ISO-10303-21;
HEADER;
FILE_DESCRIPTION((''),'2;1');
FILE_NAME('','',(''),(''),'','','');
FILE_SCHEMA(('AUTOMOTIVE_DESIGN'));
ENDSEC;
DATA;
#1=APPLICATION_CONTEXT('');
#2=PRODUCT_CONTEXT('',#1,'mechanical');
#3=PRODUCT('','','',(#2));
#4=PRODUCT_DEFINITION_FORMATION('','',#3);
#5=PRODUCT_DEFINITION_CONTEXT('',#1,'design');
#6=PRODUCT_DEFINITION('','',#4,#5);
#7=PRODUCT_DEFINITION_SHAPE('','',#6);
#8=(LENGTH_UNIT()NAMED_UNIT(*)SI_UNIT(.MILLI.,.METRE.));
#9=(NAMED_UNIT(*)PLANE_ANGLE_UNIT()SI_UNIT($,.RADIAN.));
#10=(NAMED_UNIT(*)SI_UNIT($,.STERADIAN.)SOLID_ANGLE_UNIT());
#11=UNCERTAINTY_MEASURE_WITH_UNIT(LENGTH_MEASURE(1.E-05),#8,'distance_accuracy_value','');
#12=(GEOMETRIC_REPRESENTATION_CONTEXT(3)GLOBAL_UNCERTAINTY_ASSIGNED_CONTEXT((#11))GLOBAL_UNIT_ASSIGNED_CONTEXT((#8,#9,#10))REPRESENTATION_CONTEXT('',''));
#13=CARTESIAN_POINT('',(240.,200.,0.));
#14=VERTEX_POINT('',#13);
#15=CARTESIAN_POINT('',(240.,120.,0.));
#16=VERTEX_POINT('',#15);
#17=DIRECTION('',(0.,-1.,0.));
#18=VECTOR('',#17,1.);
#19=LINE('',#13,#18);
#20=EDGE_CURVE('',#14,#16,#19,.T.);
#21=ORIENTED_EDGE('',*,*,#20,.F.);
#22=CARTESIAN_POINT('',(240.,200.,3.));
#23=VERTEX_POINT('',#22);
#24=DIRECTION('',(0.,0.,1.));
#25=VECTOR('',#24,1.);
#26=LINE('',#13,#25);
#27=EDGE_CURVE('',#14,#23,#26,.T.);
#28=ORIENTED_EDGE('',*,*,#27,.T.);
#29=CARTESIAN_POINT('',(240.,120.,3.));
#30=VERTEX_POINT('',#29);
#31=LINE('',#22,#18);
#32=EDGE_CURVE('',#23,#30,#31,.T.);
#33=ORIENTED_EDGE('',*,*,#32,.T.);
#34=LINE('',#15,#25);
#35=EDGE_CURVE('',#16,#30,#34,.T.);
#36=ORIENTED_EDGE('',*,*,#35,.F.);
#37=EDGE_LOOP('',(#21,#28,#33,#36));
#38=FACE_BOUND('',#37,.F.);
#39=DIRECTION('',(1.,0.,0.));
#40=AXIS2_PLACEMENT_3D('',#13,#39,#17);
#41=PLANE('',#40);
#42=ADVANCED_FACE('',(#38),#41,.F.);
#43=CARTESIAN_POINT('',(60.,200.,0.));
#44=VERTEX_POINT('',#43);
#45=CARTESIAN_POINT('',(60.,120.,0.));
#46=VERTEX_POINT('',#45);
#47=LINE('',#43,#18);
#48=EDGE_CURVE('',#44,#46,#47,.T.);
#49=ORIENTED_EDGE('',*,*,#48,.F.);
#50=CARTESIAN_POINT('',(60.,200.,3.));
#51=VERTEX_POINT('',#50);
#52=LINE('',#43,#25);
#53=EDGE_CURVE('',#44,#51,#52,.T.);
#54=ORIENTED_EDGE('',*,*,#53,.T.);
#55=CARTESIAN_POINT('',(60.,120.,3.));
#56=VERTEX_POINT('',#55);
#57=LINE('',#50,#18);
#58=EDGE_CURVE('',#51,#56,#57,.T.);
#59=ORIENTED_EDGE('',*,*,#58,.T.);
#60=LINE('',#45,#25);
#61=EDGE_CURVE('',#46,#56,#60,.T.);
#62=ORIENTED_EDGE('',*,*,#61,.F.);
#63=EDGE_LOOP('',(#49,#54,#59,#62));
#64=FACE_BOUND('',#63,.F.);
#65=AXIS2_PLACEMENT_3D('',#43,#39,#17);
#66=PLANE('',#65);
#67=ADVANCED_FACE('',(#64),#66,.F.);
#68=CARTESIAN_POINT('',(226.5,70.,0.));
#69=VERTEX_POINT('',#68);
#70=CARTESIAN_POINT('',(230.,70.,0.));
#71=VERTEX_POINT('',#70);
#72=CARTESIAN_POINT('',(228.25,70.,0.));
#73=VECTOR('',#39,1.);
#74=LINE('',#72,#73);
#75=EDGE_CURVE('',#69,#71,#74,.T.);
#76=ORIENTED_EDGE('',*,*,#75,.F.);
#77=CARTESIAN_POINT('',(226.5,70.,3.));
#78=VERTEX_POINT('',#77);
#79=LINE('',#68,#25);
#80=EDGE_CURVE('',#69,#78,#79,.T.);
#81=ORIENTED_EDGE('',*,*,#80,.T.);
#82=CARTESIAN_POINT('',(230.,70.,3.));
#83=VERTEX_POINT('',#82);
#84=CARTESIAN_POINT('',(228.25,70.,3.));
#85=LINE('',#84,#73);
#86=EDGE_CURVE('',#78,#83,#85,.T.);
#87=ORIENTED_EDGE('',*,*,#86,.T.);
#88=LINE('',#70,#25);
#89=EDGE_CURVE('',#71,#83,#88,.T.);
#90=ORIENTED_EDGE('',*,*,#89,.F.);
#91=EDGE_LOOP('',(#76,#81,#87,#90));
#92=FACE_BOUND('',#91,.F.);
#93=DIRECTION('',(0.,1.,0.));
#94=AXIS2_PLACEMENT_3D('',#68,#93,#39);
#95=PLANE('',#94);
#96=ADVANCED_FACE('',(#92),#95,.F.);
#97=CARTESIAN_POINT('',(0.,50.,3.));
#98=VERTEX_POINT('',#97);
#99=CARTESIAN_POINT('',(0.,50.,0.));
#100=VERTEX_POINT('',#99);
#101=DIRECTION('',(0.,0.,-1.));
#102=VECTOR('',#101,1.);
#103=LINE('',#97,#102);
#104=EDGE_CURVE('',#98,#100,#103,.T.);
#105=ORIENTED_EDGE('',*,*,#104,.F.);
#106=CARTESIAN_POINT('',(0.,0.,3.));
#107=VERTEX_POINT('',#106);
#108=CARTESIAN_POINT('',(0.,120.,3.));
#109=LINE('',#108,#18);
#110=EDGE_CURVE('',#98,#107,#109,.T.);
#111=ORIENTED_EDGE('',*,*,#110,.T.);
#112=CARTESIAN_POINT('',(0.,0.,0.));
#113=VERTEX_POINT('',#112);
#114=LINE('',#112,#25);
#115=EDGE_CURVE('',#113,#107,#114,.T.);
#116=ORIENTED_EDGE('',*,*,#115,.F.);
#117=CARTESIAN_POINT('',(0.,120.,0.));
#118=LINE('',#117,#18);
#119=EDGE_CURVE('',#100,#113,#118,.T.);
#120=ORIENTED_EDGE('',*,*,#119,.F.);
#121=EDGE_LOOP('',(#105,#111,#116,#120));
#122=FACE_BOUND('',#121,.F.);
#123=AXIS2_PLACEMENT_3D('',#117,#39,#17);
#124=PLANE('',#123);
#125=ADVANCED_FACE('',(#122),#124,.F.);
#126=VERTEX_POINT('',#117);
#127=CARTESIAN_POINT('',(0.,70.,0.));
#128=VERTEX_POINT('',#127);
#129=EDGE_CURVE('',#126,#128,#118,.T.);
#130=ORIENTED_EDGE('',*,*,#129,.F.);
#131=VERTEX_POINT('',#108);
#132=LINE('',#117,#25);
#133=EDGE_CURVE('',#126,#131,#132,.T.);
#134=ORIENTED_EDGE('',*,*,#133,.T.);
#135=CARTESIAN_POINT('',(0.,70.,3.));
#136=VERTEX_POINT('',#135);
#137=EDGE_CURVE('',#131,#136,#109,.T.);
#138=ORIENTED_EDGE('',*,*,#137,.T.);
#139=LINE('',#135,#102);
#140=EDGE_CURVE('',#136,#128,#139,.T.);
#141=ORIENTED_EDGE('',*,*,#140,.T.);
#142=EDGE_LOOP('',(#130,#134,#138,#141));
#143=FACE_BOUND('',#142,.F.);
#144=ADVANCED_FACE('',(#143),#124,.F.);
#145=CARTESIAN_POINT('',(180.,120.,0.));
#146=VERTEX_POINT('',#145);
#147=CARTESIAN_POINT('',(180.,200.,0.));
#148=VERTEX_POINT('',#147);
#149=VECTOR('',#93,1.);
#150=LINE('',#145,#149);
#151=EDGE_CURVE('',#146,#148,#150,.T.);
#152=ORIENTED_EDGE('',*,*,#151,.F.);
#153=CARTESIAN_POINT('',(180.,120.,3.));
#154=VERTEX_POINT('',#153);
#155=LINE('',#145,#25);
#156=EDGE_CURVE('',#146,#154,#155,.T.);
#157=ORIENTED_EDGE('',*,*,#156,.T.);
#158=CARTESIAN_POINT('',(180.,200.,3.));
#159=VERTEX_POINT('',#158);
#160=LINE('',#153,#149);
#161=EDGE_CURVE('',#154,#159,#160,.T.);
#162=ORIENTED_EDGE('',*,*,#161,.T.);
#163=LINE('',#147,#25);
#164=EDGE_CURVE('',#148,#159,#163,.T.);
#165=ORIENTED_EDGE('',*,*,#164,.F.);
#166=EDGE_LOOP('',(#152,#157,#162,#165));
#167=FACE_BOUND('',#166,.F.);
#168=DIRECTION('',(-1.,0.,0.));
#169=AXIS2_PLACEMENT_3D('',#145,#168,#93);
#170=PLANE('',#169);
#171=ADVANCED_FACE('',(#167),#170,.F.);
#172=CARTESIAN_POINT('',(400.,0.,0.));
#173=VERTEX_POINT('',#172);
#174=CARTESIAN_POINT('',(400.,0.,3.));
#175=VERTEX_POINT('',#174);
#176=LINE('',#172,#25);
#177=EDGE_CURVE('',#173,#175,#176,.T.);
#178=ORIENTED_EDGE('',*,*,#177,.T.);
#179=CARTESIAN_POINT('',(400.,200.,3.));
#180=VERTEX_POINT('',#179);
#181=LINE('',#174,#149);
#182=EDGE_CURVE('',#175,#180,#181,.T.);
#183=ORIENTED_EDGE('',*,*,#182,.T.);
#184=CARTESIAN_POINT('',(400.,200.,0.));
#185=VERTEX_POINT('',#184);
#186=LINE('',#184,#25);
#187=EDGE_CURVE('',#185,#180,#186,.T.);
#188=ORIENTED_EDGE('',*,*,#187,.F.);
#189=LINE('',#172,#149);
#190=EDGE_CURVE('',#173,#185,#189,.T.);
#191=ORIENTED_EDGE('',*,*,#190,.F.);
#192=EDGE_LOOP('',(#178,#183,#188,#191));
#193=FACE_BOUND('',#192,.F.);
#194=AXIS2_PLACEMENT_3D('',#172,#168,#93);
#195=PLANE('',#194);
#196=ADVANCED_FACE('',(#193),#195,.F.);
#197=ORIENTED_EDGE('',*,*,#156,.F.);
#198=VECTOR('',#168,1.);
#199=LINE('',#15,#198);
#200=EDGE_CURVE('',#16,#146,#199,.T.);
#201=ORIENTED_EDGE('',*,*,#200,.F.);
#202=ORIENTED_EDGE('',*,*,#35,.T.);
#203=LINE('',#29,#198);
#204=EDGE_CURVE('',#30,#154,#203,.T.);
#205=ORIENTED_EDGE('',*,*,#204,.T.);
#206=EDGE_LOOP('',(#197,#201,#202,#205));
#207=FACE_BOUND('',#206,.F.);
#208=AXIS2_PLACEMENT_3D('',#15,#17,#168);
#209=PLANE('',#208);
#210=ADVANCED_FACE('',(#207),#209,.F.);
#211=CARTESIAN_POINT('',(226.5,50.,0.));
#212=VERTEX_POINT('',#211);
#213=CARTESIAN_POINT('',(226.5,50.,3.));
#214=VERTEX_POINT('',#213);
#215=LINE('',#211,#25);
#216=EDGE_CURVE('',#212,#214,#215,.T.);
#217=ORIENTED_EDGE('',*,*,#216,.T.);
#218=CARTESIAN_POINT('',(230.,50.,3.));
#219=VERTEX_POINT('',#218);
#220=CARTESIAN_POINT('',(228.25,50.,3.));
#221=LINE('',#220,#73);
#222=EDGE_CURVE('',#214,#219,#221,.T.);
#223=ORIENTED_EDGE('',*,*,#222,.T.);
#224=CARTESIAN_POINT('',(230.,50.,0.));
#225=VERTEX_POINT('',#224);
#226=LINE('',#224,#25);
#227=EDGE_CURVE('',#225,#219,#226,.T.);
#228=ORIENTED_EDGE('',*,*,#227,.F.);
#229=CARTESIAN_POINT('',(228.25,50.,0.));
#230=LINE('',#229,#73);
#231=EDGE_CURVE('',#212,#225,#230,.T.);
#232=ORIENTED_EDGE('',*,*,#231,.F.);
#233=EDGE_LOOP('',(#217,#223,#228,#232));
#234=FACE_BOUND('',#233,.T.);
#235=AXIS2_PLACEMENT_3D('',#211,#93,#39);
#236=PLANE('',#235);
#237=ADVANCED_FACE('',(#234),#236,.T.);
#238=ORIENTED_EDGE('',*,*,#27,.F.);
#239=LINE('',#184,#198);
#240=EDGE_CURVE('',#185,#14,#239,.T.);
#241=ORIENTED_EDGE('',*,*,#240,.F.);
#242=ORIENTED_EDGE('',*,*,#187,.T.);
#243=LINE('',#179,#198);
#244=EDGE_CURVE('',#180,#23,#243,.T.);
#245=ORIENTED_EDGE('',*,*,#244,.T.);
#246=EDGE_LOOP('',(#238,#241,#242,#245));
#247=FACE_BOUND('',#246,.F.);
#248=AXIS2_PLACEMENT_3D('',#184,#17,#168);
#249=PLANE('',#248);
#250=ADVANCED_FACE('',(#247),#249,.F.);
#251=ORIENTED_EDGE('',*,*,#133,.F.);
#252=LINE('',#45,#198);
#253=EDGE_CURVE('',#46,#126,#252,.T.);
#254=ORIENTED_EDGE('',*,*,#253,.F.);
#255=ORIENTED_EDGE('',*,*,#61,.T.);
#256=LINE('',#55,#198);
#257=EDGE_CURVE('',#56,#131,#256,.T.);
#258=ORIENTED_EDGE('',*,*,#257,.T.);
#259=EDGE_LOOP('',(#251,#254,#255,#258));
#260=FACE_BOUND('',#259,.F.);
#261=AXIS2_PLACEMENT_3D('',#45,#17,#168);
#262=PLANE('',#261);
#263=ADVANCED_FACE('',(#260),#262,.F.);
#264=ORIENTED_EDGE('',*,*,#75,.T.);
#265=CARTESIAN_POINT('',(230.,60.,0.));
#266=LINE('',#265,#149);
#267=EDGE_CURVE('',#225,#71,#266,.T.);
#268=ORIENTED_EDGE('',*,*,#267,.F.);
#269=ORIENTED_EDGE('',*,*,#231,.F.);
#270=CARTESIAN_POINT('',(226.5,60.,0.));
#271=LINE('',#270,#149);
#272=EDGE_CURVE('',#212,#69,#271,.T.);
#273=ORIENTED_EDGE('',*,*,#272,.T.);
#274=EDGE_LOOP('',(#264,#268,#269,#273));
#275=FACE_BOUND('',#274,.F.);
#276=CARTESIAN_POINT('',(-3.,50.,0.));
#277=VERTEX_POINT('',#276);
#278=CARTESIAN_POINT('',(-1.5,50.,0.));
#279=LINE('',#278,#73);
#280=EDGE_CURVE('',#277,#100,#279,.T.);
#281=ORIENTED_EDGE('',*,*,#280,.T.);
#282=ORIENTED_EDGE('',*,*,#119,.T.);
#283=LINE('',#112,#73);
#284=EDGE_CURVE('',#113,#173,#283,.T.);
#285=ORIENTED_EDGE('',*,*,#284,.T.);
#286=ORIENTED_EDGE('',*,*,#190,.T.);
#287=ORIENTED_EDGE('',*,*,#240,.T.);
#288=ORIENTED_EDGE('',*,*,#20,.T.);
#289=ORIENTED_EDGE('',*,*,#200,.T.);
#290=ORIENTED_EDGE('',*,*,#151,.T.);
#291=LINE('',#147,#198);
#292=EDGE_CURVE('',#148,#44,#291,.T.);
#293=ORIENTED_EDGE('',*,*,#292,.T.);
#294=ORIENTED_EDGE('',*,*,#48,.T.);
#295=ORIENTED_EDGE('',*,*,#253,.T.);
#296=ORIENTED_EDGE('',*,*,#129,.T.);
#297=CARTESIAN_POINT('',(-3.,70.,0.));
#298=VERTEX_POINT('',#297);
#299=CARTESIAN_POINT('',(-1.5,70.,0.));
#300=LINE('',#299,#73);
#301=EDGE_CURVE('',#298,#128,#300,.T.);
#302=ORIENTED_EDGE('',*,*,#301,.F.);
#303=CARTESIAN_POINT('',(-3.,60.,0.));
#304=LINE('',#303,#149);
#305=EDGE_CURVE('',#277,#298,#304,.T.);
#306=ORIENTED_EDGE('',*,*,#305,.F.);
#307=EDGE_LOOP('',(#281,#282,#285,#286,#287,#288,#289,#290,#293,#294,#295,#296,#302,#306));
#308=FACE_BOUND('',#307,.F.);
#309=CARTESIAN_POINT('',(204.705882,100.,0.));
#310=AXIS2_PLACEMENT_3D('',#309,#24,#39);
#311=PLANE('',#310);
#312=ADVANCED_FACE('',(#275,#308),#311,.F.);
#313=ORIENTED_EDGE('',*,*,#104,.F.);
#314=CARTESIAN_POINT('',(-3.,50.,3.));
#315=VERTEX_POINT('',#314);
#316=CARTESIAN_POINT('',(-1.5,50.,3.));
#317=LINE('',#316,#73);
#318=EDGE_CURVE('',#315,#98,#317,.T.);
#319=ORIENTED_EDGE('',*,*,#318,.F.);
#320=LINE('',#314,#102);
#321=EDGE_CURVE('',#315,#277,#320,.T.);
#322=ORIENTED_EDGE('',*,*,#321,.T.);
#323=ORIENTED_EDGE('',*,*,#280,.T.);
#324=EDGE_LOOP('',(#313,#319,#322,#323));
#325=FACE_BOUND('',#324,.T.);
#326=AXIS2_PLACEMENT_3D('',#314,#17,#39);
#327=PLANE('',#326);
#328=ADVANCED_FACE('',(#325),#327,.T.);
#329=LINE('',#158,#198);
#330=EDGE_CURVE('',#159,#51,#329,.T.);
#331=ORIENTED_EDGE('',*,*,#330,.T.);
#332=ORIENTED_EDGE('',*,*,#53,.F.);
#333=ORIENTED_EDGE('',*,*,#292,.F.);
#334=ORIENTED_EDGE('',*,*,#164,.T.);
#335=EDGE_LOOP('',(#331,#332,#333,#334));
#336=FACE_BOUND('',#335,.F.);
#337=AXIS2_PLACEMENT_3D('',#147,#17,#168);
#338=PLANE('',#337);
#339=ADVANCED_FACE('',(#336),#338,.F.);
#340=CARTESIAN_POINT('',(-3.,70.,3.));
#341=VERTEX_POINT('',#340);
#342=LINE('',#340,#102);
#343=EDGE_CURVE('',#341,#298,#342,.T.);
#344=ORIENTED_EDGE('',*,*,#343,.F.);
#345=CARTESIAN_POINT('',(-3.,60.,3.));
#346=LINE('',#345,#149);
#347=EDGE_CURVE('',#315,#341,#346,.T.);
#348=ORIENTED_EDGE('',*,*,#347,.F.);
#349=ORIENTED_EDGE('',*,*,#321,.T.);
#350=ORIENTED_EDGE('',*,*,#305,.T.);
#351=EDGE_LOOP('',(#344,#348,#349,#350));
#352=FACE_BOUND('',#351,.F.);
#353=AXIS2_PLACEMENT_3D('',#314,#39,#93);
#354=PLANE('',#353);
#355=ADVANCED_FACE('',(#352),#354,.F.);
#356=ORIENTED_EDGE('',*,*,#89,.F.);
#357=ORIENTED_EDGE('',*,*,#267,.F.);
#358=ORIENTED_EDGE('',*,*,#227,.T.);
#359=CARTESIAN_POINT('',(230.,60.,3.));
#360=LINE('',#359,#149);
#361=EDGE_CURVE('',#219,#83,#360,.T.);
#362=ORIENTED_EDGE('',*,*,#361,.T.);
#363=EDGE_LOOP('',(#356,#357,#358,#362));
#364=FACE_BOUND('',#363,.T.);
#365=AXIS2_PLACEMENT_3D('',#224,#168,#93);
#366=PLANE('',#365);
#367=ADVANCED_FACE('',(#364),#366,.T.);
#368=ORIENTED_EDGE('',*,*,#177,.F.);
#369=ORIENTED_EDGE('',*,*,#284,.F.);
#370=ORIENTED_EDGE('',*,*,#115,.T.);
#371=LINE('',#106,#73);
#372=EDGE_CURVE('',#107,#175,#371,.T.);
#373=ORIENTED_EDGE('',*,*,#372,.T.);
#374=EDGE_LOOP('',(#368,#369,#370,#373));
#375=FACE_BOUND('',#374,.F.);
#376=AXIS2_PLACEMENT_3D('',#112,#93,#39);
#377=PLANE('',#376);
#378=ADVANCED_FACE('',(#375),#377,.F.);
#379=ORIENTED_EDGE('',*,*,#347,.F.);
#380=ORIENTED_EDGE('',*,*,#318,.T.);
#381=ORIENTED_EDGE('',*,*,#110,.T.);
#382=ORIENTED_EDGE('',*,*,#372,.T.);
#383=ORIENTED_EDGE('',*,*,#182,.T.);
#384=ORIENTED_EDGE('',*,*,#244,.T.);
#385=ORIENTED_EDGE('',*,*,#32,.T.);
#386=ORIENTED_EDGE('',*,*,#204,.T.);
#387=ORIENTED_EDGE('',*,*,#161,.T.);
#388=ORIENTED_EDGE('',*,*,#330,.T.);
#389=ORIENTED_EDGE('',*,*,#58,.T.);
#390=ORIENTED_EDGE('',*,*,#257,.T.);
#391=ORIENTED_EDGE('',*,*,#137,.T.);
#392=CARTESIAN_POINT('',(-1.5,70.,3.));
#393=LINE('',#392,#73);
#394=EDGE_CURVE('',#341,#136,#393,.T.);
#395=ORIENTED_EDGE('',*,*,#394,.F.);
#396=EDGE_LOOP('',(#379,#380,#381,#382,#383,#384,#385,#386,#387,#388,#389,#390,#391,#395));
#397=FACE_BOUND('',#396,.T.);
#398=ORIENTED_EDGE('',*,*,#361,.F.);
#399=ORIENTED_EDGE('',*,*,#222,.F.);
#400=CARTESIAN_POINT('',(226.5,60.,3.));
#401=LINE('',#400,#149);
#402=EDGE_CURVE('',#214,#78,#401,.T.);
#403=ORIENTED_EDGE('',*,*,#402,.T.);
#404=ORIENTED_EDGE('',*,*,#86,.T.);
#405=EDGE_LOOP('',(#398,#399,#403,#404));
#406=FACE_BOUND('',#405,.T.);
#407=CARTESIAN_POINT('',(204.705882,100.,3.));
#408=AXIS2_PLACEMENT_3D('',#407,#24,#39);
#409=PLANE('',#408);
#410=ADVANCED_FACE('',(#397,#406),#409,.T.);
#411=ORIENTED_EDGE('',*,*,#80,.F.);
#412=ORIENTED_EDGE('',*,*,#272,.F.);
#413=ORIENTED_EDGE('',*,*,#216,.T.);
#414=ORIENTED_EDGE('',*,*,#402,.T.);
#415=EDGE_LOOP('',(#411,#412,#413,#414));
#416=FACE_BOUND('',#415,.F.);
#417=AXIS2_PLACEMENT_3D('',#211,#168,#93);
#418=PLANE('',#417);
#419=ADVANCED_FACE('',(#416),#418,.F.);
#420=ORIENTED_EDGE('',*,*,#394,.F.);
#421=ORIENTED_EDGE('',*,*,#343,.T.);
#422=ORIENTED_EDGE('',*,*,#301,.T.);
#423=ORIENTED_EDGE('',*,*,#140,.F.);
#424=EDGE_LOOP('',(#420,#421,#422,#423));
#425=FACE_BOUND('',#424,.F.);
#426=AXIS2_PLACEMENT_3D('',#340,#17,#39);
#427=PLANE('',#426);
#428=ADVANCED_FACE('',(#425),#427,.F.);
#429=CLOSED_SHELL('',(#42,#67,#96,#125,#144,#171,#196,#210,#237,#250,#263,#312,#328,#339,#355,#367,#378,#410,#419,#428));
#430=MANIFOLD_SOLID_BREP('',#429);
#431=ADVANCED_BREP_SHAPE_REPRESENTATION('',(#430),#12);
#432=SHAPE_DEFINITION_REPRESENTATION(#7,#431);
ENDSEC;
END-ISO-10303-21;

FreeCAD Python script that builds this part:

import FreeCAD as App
import Part
import Sketcher
from FreeCAD import Vector
Q = App.Units.Quantity

doc = App.newDocument("Part")
body = doc.addObject("PartDesign::Body", "Body")

# Sketch on XY plane
sketch1 = body.newObject("Sketcher::SketchObject", "Sketch")
sketch1.AttachmentSupport = (doc.getObject("XY_Plane"), [""])
sketch1.MapMode = "FlatFace"
sketch1.addGeometry([
    Part.LineSegment(Vector(60, 200, 0), Vector(60, 120, 0)),  # 0
    Part.LineSegment(Vector(60, 120, 0), Vector(0, 120, 0)),  # 1
    Part.LineSegment(Vector(0, 120, 0), Vector(0, 0, 0)),  # 2
    Part.LineSegment(Vector(0, 0, 0), Vector(400, 0, 0)),  # 3
    Part.LineSegment(Vector(400, 0, 0), Vector(400, 200, 0)),  # 4
    Part.LineSegment(Vector(400, 200, 0), Vector(240, 200, 0)),  # 5
    Part.LineSegment(Vector(240, 200, 0), Vector(240, 120, 0)),  # 6
    Part.LineSegment(Vector(240, 120, 0), Vector(180, 120, 0)),  # 7
    Part.LineSegment(Vector(180, 120, 0), Vector(180, 200, 0)),  # 8
    Part.LineSegment(Vector(180, 200, 0), Vector(60, 200, 0)),  # 9
    Part.LineSegment(Vector(230, 50, 0), Vector(226.5, 50, 0)),  # 10
    Part.LineSegment(Vector(226.5, 50, 0), Vector(226.5, 70, 0)),  # 11
    Part.LineSegment(Vector(226.5, 70, 0), Vector(230, 70, 0)),  # 12
    Part.LineSegment(Vector(230, 70, 0), Vector(230, 50, 0)),  # 13
], False)
sketch1.addConstraint([
    Sketcher.Constraint("Coincident", 0, 2, 1, 1),
    Sketcher.Constraint("Coincident", 1, 2, 2, 1),
    Sketcher.Constraint("Coincident", 2, 2, 3, 1),
    Sketcher.Constraint("Coincident", 3, 2, 4, 1),
    Sketcher.Constraint("Coincident", 4, 2, 5, 1),
    Sketcher.Constraint("Coincident", 5, 2, 6, 1),
    Sketcher.Constraint("Coincident", 6, 2, 7, 1),
    Sketcher.Constraint("Coincident", 7, 2, 8, 1),
    Sketcher.Constraint("Coincident", 8, 2, 9, 1),
    Sketcher.Constraint("Coincident", 9, 2, 0, 1),
    Sketcher.Constraint("Coincident", 10, 2, 11, 1),
    Sketcher.Constraint("Coincident", 11, 2, 12, 1),
    Sketcher.Constraint("Coincident", 12, 2, 13, 1),
    Sketcher.Constraint("Coincident", 13, 2, 10, 1),
    Sketcher.Constraint("Vertical", 0),
    Sketcher.Constraint("Horizontal", 1),
    Sketcher.Constraint("Vertical", 2),
    Sketcher.Constraint("Horizontal", 3),
    Sketcher.Constraint("Vertical", 4),
    Sketcher.Constraint("Horizontal", 5),
    Sketcher.Constraint("Vertical", 6),
    Sketcher.Constraint("Horizontal", 7),
    Sketcher.Constraint("Vertical", 8),
    Sketcher.Constraint("Horizontal", 9),
    Sketcher.Constraint("Horizontal", 10),
    Sketcher.Constraint("Vertical", 11),
    Sketcher.Constraint("Horizontal", 12),
    Sketcher.Constraint("Vertical", 13),
    Sketcher.Constraint("Coincident", 2, 2, -1, 1),
    Sketcher.Constraint("Horizontal", 1, 2, 6, 2),
    Sketcher.Constraint("Horizontal", 5, 2, 8, 2),
    Sketcher.Constraint("Equal", 1, 7),
    Sketcher.Constraint("Equal", 9, 2),
    Sketcher.Constraint("DistanceX", 1, 2, 1, 1, Q("60 mm")),
    Sketcher.Constraint("DistanceX", 3, 1, 3, 2, Q("400 mm")),
    Sketcher.Constraint("DistanceX", 5, 2, 5, 1, Q("160 mm")),
    Sketcher.Constraint("DistanceY", 0, 2, 0, 1, Q("80 mm")),
    Sketcher.Constraint("DistanceY", 11, 1, 11, 2, Q("20 mm")),
    Sketcher.Constraint("DistanceX", 10, 2, 10, 1, Q("3.5 mm")),
    Sketcher.Constraint("DistanceY", -1, 1, 10, 2, Q("50 mm")),
    Sketcher.Constraint("DistanceX", -1, 1, 12, 2, Q("230 mm")),
])
pad1 = body.newObject("PartDesign::Pad", "Pad")
pad1.Profile = sketch1
pad1.Length = 3

# Sketch on XY plane
sketch2 = body.newObject("Sketcher::SketchObject", "Sketch001")
sketch2.AttachmentSupport = (doc.getObject("XY_Plane"), [""])
sketch2.MapMode = "FlatFace"
sketch2.AttachmentOffset = App.Placement(Vector(0, 0, 3), App.Rotation())
sketch2.addGeometry([
    Part.LineSegment(Vector(-3, 70, 0), Vector(-3, 50, 0)),
    Part.LineSegment(Vector(-3, 50, 0), Vector(0, 50, 0)),
    Part.LineSegment(Vector(0, 50, 0), Vector(0, 70, 0)),
    Part.LineSegment(Vector(0, 70, 0), Vector(-3, 70, 0)),
], False)
sketch2.addConstraint([
    Sketcher.Constraint("Coincident", 0, 2, 1, 1),
    Sketcher.Constraint("Coincident", 1, 2, 2, 1),
    Sketcher.Constraint("Coincident", 2, 2, 3, 1),
    Sketcher.Constraint("Coincident", 3, 2, 0, 1),
    Sketcher.Constraint("Vertical", 0),
    Sketcher.Constraint("Horizontal", 1),
    Sketcher.Constraint("Vertical", 2),
    Sketcher.Constraint("Horizontal", 3),
    Sketcher.Constraint("PointOnObject", 1, 2, -2),
    Sketcher.Constraint("DistanceX", 1, 1, 1, 2, Q("3 mm")),
    Sketcher.Constraint("DistanceY", 0, 2, 0, 1, Q("20 mm")),
    Sketcher.Constraint("DistanceY", -1, 1, 0, 2, Q("50 mm")),
])
pad2 = body.newObject("PartDesign::Pad", "Pad001")
pad2.Profile = sketch2
pad2.Length = 3
pad2.Reversed = True

doc.recompute()
